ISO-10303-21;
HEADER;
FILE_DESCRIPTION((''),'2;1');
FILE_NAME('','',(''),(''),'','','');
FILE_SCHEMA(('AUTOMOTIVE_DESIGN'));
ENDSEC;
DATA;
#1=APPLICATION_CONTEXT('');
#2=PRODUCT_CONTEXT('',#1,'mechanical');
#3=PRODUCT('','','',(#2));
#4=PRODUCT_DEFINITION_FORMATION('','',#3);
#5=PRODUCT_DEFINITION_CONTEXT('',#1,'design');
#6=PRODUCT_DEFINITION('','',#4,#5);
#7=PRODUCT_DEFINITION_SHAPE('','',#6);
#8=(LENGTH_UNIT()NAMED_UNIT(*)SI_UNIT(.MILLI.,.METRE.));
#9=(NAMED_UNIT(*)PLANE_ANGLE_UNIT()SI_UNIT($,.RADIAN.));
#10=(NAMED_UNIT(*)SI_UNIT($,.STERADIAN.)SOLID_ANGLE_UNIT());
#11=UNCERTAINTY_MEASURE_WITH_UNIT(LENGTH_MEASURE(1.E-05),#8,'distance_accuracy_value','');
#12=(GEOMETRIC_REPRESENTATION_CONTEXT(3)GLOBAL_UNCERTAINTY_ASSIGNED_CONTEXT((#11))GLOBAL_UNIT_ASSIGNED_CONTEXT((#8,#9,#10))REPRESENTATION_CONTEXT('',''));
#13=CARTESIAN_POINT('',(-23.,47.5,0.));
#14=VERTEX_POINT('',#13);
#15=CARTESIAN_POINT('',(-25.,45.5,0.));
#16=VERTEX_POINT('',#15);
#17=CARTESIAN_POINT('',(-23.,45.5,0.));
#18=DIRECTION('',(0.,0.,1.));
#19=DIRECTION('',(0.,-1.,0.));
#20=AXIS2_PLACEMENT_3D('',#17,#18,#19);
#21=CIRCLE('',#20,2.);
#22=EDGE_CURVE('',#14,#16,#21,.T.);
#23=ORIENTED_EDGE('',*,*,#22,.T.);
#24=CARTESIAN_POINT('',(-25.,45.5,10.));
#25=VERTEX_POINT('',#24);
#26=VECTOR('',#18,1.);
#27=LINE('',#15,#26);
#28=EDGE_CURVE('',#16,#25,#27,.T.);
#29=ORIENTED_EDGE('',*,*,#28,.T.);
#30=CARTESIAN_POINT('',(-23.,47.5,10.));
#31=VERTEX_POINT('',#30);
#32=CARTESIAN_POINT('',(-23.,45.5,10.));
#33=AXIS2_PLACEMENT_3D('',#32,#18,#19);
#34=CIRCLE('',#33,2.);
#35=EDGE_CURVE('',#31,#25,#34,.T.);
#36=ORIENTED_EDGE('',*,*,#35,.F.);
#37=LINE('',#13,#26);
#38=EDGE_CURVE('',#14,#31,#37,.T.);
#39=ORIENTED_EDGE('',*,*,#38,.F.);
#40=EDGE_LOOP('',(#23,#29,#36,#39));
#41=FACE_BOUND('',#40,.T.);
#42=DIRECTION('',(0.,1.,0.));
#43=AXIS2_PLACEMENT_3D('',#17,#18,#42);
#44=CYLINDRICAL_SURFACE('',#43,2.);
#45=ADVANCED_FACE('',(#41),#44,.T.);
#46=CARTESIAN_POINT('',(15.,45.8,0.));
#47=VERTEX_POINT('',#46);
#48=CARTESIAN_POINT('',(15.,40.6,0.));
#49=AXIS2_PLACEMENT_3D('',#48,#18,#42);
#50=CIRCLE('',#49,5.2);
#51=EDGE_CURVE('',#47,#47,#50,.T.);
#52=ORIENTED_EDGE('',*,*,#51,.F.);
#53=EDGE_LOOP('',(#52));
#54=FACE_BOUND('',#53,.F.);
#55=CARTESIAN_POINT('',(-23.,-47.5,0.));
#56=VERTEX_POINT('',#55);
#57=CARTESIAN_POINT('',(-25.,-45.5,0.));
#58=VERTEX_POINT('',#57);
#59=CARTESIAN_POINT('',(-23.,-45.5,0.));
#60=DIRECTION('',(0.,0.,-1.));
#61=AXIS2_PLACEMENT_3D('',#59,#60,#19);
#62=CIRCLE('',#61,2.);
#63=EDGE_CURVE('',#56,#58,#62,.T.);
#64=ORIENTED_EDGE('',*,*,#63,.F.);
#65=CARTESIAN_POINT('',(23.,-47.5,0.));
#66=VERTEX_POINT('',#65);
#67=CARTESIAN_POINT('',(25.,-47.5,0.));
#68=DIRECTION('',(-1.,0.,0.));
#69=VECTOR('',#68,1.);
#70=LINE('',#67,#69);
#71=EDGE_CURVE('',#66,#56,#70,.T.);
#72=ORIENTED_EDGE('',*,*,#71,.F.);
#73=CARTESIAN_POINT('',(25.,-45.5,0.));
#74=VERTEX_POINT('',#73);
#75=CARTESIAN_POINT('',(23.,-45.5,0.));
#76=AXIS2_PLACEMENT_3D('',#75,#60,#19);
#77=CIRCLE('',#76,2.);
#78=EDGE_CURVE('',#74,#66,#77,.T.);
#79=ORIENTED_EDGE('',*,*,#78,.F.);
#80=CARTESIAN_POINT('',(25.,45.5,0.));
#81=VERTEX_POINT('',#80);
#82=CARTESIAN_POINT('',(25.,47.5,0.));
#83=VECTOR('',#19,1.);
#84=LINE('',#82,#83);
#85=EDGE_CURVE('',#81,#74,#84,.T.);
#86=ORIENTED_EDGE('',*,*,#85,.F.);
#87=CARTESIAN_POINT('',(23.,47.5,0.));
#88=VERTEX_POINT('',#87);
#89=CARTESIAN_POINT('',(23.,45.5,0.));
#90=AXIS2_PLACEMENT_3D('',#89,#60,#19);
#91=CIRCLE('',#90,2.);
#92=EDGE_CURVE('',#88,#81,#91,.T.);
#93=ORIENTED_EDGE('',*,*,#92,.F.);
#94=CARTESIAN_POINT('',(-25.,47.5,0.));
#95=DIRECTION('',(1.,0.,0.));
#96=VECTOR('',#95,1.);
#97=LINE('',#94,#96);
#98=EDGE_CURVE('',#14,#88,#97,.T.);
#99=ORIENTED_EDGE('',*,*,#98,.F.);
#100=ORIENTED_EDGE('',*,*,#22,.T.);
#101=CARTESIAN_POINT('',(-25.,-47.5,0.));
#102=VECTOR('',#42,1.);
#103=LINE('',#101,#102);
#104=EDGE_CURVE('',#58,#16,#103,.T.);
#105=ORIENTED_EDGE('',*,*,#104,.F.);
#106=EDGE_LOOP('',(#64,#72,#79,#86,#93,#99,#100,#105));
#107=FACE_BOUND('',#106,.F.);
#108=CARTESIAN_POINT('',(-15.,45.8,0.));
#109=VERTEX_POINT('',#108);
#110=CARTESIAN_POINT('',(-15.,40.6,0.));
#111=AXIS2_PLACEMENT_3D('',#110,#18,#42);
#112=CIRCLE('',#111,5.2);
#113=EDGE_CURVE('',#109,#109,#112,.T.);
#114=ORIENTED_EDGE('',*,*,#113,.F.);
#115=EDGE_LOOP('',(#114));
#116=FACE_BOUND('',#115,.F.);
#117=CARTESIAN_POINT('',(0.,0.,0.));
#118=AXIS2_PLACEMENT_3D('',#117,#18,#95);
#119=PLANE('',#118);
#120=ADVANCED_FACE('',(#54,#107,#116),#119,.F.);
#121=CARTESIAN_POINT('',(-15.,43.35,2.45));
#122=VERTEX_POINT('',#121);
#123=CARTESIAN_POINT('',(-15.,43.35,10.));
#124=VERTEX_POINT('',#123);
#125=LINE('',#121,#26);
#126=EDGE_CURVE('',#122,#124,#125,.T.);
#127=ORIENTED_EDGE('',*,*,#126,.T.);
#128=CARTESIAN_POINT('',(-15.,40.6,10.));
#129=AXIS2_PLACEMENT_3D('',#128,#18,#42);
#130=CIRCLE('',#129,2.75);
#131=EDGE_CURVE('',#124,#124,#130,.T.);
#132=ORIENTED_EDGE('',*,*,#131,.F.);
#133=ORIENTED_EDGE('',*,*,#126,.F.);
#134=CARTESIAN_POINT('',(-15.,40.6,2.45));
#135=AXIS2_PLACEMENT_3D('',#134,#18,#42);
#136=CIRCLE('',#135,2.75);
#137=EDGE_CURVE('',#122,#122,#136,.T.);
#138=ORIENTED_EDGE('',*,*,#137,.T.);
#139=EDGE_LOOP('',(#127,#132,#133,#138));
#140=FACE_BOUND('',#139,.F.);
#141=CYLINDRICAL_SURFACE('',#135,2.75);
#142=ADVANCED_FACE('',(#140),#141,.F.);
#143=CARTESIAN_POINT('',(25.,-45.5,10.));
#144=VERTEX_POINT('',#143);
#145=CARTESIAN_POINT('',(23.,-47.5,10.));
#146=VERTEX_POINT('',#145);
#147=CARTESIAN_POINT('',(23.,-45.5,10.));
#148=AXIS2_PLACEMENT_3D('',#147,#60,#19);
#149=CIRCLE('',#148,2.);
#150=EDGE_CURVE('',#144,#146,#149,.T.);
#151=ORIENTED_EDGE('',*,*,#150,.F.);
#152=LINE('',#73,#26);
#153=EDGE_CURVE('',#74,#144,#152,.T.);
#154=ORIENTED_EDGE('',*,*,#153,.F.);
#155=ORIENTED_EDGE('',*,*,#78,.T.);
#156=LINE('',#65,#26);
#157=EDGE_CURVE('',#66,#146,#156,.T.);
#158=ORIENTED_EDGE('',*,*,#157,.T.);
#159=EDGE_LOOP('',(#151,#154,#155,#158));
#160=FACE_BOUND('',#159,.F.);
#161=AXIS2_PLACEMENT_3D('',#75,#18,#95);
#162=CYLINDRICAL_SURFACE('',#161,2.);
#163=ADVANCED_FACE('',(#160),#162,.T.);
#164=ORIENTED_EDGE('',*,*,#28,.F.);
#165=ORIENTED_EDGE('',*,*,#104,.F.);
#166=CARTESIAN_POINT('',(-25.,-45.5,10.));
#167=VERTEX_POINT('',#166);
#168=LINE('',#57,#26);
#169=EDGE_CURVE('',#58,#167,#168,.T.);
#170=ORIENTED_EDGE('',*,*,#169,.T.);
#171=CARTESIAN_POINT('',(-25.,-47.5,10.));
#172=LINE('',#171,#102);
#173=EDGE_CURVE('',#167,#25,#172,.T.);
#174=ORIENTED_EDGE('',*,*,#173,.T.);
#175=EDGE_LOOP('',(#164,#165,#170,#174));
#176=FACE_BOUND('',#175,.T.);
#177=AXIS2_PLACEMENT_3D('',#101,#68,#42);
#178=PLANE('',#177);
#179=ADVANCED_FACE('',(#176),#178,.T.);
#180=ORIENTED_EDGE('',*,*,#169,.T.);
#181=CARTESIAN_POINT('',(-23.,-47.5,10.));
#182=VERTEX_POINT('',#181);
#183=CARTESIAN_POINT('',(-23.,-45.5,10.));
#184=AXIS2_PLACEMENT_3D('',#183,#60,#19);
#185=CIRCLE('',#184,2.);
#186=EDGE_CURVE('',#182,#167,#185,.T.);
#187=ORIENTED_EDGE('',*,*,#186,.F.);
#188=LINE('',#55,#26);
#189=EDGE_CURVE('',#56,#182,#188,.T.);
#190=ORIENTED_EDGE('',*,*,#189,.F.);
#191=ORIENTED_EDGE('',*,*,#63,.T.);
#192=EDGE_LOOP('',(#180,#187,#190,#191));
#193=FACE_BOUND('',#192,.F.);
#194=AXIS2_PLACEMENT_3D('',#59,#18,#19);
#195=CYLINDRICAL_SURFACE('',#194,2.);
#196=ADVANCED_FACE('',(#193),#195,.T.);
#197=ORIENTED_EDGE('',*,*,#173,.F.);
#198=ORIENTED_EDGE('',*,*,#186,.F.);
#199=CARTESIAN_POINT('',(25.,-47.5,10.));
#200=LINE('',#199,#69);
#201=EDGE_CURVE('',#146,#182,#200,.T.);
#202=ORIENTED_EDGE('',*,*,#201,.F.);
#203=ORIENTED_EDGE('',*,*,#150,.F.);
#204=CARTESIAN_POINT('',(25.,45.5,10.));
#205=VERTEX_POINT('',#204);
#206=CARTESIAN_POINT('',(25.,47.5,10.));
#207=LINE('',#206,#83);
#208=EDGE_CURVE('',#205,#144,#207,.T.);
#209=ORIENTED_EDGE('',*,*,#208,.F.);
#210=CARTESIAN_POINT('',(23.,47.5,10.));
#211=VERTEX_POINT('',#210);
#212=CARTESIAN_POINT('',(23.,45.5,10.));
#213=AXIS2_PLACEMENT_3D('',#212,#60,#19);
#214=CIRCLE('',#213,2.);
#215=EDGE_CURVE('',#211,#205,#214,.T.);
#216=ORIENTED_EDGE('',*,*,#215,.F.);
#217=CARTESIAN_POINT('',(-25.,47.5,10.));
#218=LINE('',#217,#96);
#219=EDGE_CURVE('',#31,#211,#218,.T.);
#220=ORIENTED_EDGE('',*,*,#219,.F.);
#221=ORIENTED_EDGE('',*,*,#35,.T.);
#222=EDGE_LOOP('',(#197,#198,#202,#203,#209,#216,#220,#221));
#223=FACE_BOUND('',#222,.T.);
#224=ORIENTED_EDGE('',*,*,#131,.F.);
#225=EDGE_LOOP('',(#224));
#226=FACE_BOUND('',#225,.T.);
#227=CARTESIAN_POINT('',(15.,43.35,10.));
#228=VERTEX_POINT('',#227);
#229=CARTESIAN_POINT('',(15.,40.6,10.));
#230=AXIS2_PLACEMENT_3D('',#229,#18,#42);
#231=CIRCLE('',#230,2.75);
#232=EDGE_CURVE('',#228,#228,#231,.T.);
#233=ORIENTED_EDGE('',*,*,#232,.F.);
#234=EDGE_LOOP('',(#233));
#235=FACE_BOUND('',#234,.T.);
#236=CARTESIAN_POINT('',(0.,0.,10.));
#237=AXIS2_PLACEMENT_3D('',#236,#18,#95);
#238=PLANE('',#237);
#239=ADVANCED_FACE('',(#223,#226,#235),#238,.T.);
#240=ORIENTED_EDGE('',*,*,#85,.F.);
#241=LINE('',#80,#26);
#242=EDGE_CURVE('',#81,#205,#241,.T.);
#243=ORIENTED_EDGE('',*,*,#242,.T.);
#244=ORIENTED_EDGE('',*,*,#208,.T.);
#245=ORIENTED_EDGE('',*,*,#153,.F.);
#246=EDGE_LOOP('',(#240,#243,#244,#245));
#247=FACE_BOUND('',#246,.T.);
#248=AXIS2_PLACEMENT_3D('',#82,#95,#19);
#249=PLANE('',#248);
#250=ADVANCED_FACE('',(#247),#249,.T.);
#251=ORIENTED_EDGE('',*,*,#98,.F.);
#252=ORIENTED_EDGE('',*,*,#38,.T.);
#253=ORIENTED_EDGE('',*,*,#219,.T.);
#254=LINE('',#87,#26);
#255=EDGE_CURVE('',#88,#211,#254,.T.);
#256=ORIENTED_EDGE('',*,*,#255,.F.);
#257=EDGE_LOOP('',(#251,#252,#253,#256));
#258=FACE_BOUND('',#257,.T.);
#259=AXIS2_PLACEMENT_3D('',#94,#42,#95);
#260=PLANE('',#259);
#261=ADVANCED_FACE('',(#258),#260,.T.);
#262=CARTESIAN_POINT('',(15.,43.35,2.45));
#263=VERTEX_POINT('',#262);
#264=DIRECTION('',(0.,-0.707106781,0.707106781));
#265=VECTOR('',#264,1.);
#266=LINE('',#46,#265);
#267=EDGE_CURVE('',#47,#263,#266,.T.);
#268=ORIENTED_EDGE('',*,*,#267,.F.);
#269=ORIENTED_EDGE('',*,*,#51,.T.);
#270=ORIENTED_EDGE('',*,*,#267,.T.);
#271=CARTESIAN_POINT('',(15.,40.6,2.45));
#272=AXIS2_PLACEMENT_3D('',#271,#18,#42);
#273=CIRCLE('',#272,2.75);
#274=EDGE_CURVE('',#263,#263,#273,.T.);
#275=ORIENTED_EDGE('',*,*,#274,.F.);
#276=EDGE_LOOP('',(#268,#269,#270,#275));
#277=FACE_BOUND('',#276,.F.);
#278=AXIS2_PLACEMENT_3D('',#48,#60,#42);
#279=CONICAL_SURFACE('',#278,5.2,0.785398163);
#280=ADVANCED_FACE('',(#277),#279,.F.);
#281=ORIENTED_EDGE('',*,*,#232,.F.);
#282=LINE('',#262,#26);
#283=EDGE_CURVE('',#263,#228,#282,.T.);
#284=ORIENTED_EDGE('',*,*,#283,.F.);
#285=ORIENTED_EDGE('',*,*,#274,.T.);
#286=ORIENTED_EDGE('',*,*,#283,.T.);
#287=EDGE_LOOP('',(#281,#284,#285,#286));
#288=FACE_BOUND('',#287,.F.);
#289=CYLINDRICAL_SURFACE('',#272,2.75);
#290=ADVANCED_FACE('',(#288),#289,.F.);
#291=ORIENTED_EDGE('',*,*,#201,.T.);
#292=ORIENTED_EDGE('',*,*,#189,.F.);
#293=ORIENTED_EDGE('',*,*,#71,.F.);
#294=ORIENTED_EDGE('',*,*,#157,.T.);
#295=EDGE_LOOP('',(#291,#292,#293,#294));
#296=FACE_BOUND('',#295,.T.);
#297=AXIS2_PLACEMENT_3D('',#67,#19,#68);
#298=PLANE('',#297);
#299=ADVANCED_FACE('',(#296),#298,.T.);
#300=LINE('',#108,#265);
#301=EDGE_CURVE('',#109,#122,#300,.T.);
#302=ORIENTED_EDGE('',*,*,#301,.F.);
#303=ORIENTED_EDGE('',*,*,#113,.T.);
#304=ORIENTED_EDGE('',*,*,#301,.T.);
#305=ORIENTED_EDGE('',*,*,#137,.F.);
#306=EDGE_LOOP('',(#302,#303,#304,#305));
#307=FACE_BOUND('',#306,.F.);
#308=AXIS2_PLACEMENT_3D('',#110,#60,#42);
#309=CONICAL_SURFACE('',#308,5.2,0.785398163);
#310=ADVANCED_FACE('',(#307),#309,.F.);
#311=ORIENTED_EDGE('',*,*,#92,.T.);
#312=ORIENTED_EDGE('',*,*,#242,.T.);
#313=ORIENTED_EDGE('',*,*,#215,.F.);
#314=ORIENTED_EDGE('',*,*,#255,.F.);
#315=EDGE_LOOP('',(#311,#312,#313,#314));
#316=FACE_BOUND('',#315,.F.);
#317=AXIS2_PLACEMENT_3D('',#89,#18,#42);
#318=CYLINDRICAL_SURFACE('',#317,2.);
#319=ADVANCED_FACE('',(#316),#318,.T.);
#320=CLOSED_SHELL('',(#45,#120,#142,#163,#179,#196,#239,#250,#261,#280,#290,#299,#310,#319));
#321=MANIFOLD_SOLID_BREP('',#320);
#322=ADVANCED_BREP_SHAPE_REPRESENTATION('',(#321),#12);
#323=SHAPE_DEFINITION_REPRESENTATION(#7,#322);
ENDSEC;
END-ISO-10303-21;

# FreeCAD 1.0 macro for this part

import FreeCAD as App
import Part
import Sketcher
Q = App.Units.Quantity


def edges_at(feature, points):
    """Names of the edges that pass closest to the given points."""
    edges = feature.Shape.Edges
    near = lambda p: min(range(len(edges)), key=lambda i: edges[i].distToShape(Part.Vertex(*p))[0])
    return sorted({f"Edge{near(p) + 1}" for p in points})

doc = App.newDocument("Part")
body = doc.addObject("PartDesign::Body", "Body")

sketch1 = body.newObject("Sketcher::SketchObject", "Sketch")
sketch1.AttachmentSupport = (doc.getObject("XY_Plane"), [""])
sketch1.MapMode = "FlatFace"
sketch1.addGeometry([
    Part.LineSegment(App.Vector(25, 48, 0), App.Vector(-25, 48, 0)),
    Part.LineSegment(App.Vector(-25, 48, 0), App.Vector(-25, -48, 0)),
    Part.LineSegment(App.Vector(-25, -48, 0), App.Vector(25, -48, 0)),
    Part.LineSegment(App.Vector(25, -48, 0), App.Vector(25, 48, 0)),
], False)
sketch1.addConstraint([
    Sketcher.Constraint("Coincident", 0, 2, 1, 1),
    Sketcher.Constraint("Coincident", 1, 2, 2, 1),
    Sketcher.Constraint("Coincident", 2, 2, 3, 1),
    Sketcher.Constraint("Coincident", 3, 2, 0, 1),
    Sketcher.Constraint("Horizontal", 0),
    Sketcher.Constraint("Vertical", 1),
    Sketcher.Constraint("Horizontal", 2),
    Sketcher.Constraint("Vertical", 3),
    Sketcher.Constraint("Symmetric", 0, 2, 2, 2, -1, 1),
    Sketcher.Constraint("DistanceX", 0, 2, 0, 1, Q("50 mm")),
    Sketcher.Constraint("DistanceY", 1, 2, 1, 1, Q("95 mm")),
])
pad1 = body.newObject("PartDesign::Pad", "Pad")
pad1.Profile = sketch1
pad1.Length = 10
doc.recompute()

fillet = body.newObject("PartDesign::Fillet", "Fillet")
fillet.Base = (pad1, edges_at(pad1, [
    (25, 47.5, 5),
    (-25, 47.5, 5),
    (25, -47.5, 5),
    (-25, -47.5, 5),
]))
fillet.Radius = 2

sketch2 = body.newObject("Sketcher::SketchObject", "Sketch001")
sketch2.AttachmentSupport = (doc.getObject("XY_Plane"), [""])
sketch2.MapMode = "FlatFace"
sketch2.addGeometry([
    Part.Circle(App.Vector(-15, 40.6, 0), App.Vector(0, 0, 1), 2.8),
    Part.Circle(App.Vector(15, 40.6, 0), App.Vector(0, 0, 1), 2.8),
], False)
sketch2.addConstraint([
    Sketcher.Constraint("Equal", 0, 1),
    Sketcher.Constraint("Symmetric", 0, 3, 1, 3, -2),
    Sketcher.Constraint("Diameter", 0, Q("5.5 mm")),
    Sketcher.Constraint("DistanceX", 0, 3, -1, 1, Q("15 mm")),
    Sketcher.Constraint("DistanceY", -1, 1, 0, 3, Q("40.6 mm")),
])
doc.recompute()
hole = body.newObject("PartDesign::Hole", "Hole")
hole.Profile = sketch2
hole.ThreadType = "None"
hole.Diameter = 5.5
hole.DepthType = "ThroughAll"
hole.HoleCutType = "Countersink"
hole.HoleCutDiameter = 10.4
hole.HoleCutCountersinkAngle = 90
hole.Reversed = True

doc.recompute()
